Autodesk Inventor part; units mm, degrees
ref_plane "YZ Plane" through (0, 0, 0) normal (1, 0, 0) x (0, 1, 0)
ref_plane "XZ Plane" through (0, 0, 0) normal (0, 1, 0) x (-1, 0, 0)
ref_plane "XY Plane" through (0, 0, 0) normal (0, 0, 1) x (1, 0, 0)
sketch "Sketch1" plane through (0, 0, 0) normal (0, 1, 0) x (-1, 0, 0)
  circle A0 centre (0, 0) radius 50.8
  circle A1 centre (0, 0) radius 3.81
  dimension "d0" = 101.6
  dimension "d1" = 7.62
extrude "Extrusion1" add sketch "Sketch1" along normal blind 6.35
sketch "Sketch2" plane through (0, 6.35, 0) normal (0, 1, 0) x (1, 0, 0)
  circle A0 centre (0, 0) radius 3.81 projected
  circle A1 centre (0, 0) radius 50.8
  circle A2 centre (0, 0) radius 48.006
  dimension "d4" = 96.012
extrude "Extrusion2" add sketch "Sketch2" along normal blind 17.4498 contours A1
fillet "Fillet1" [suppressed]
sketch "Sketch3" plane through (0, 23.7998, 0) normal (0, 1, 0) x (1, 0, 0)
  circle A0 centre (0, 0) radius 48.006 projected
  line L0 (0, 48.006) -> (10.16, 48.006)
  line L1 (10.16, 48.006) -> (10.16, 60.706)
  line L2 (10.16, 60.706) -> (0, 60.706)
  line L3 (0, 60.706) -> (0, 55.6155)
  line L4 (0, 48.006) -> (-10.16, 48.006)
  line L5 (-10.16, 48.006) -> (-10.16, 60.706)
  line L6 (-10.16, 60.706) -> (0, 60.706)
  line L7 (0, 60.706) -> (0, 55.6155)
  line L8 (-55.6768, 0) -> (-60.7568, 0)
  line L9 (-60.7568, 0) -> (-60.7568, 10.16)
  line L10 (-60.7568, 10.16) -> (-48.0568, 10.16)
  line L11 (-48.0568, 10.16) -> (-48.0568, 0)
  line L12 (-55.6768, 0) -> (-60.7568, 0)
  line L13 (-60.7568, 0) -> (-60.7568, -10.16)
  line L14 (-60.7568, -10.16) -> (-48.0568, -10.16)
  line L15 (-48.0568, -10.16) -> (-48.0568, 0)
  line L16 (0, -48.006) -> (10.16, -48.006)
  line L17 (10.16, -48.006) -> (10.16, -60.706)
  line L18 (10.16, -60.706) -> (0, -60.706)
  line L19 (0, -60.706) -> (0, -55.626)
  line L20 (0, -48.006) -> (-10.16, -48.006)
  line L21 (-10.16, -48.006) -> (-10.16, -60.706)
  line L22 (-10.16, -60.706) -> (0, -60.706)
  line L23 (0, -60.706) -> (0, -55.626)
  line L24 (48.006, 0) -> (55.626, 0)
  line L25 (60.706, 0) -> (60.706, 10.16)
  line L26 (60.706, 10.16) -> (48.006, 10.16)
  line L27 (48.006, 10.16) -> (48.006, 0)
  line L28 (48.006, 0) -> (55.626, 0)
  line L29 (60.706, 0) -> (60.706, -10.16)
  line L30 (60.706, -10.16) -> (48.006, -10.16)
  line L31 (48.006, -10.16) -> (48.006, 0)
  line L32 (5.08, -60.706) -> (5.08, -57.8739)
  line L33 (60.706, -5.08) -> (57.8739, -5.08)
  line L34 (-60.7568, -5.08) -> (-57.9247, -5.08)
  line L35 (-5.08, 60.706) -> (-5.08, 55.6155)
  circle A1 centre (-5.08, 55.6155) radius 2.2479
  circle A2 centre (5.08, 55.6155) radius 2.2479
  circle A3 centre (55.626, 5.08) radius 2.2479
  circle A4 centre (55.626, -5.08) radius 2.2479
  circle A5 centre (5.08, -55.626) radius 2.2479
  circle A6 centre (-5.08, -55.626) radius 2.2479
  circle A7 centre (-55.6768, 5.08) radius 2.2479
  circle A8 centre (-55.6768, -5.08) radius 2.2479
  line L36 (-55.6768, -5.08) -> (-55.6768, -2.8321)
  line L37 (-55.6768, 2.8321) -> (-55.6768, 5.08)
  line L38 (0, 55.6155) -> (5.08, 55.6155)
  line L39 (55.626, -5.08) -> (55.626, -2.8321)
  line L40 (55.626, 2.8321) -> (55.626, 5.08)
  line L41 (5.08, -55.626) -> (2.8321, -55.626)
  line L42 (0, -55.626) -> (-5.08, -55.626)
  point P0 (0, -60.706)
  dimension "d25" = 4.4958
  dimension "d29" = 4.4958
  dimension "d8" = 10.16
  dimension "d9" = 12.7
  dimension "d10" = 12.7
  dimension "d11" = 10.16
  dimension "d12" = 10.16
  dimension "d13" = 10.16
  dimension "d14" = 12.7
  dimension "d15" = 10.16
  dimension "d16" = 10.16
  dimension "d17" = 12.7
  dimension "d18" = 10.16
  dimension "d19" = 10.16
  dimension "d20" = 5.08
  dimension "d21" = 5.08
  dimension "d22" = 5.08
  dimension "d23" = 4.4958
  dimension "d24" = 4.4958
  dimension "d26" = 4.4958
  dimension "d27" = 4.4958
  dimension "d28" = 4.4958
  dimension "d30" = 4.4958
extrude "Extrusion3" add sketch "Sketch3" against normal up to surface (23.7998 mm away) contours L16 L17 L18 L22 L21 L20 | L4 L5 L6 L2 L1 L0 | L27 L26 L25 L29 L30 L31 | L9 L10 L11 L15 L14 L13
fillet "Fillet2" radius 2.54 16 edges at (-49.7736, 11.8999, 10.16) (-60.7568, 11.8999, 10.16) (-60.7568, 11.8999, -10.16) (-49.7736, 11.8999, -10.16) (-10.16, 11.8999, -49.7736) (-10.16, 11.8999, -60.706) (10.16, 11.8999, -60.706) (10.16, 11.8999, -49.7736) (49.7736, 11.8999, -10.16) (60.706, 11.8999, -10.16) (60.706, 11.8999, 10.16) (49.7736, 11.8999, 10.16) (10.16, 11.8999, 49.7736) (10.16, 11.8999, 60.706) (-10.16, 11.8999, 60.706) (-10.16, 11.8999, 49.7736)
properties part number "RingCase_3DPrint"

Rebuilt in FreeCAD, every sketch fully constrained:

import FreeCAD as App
import Part
import Sketcher
from FreeCAD import Vector
Q = App.Units.Quantity


def edges_at(feature, points):
    """Names of the edges that pass closest to the given points."""
    edges = feature.Shape.Edges
    near = lambda p: min(range(len(edges)), key=lambda i: edges[i].distToShape(Part.Vertex(*p))[0])
    return sorted({f"Edge{near(p) + 1}" for p in points})


def add_polygon(sketch, points):
    """Adds a closed chain of lines whose ends are joined by coincident constraints."""
    first, n = sketch.GeometryCount, len(points)
    for a, b in zip(points, points[1:] + points[:1]):
        sketch.addGeometry(Part.LineSegment(App.Vector(*a, 0), App.Vector(*b, 0)), False)
    for i in range(n):
        sketch.addConstraint(Sketcher.Constraint("Coincident", first + i, 2, first + (i + 1) % n, 1))

doc = App.newDocument("Part")
body = doc.addObject("PartDesign::Body", "Body")

# Sketch on XZ plane
sketch1 = body.newObject("Sketcher::SketchObject", "Sketch")
sketch1.AttachmentSupport = (doc.getObject("XZ_Plane"), [""])
sketch1.MapMode = "FlatFace"
sketch1.addGeometry([
    Part.Circle(Vector(0, 0, 0), Vector(0, 0, 1), 50.8),
    Part.Circle(Vector(0, 0, 0), Vector(0, 0, 1), 3.81),
], False)
sketch1.addConstraint([
    Sketcher.Constraint("Coincident", 0, 3, -1, 1),
    Sketcher.Constraint("Coincident", 1, 3, -1, 1),
    Sketcher.Constraint("Diameter", 0, Q("4 in")),
    Sketcher.Constraint("Diameter", 1, Q("0.3 in")),
])
pad1 = body.newObject("PartDesign::Pad", "Pad")
pad1.Profile = sketch1
pad1.Length = Q("0.25 in")
pad1.Reversed = True

# Sketch on XZ plane
sketch2 = body.newObject("Sketcher::SketchObject", "Sketch001")
sketch2.AttachmentSupport = (doc.getObject("XZ_Plane"), [""])
sketch2.MapMode = "FlatFace"
sketch2.AttachmentOffset = App.Placement(Vector(0, 0, -0.25 * 25.4), App.Rotation())
sketch2.addGeometry([
    Part.Circle(Vector(0, 0, 0), Vector(0, 0, 1), 50.8),
    Part.Circle(Vector(0, 0, 0), Vector(0, 0, 1), 48.006),
], False)
sketch2.addConstraint([
    Sketcher.Constraint("Coincident", 0, 3, -1, 1),
    Sketcher.Constraint("Coincident", 1, 3, -1, 1),
    Sketcher.Constraint("Diameter", 1, Q("3.78 in")),
    Sketcher.Constraint("Diameter", 0, Q("4 in")),
])
pad2 = body.newObject("PartDesign::Pad", "Pad001")
pad2.Profile = sketch2
pad2.Length = Q("0.687 in")
pad2.Reversed = True

# Sketch on XZ plane
sketch3 = body.newObject("Sketcher::SketchObject", "Sketch002")
sketch3.AttachmentSupport = (doc.getObject("XZ_Plane"), [""])
sketch3.MapMode = "FlatFace"
sketch3.AttachmentOffset = App.Placement(Vector(0, 0, -0.937 * 25.4), App.Rotation())
add_polygon(sketch3, [(10.16, 48.006), (-10.16, 48.006), (-10.16, 60.706), (0, 60.706), (5.08, 60.706), (10.16, 60.706)])  # lines 0-5
sketch3.addGeometry(Part.Circle(Vector(-5.08, 55.626, 0), Vector(0, 0, 1), 2.2479), False)  # 6
sketch3.addGeometry(Part.Circle(Vector(5.08, 55.626, 0), Vector(0, 0, 1), 2.2479), False)  # 7
add_polygon(sketch3, [(-10.16, -48.006), (10.16, -48.006), (10.16, -60.706), (0, -60.706), (-5.08, -60.706), (-10.16, -60.706)])  # lines 8-13
sketch3.addGeometry(Part.Circle(Vector(-5.08, -55.6155, 0), Vector(0, 0, 1), 2.2479), False)  # 14
sketch3.addGeometry(Part.Circle(Vector(5.08, -55.6155, 0), Vector(0, 0, 1), 2.2479), False)  # 15
add_polygon(sketch3, [(48.006, -10.16), (48.006, 10.16), (60.706, 10.16), (60.706, 5.08), (60.706, -10.16)])  # lines 16-20
sketch3.addGeometry(Part.Circle(Vector(55.626, 5.08, 0), Vector(0, 0, 1), 2.2479), False)  # 21
sketch3.addGeometry(Part.Circle(Vector(55.626, -5.08, 0), Vector(0, 0, 1), 2.2479), False)  # 22
add_polygon(sketch3, [(-60.7568, -10.16), (-60.7568, 5.08), (-60.7568, 10.16), (-48.0568, 10.16), (-48.0568, -10.16)])  # lines 23-27
sketch3.addGeometry(Part.Circle(Vector(-55.6768, 5.08, 0), Vector(0, 0, 1), 2.2479), False)  # 28
sketch3.addGeometry(Part.Circle(Vector(-55.6768, -5.08, 0), Vector(0, 0, 1), 2.2479), False)  # 29
sketch3.addConstraint([
    Sketcher.Constraint("Horizontal", 0),
    Sketcher.Constraint("Vertical", 1),
    Sketcher.Constraint("Horizontal", 2),
    Sketcher.Constraint("Horizontal", 3),
    Sketcher.Constraint("Horizontal", 4),
    Sketcher.Constraint("Vertical", 5),
    Sketcher.Constraint("Horizontal", 8),
    Sketcher.Constraint("Vertical", 9),
    Sketcher.Constraint("Horizontal", 10),
    Sketcher.Constraint("Horizontal", 11),
    Sketcher.Constraint("Horizontal", 12),
    Sketcher.Constraint("Vertical", 13),
    Sketcher.Constraint("Vertical", 16),
    Sketcher.Constraint("Horizontal", 17),
    Sketcher.Constraint("Vertical", 18),
    Sketcher.Constraint("Vertical", 19),
    Sketcher.Constraint("Horizontal", 20),
    Sketcher.Constraint("Vertical", 23),
    Sketcher.Constraint("Vertical", 24),
    Sketcher.Constraint("Horizontal", 25),
    Sketcher.Constraint("Vertical", 26),
    Sketcher.Constraint("Horizontal", 27),
    Sketcher.Constraint("Equal", 6, 7),
    Sketcher.Constraint("Equal", 7, 14),
    Sketcher.Constraint("Equal", 14, 15),
    Sketcher.Constraint("Equal", 15, 21),
    Sketcher.Constraint("Equal", 21, 22),
    Sketcher.Constraint("Equal", 22, 28),
    Sketcher.Constraint("Equal", 28, 29),
    Sketcher.Constraint("Symmetric", 0, 2, 8, 2, -1, 1),
    Sketcher.Constraint("Symmetric", 2, 2, 10, 2, -1, 1),
    Sketcher.Constraint("Symmetric", 6, 3, 7, 3, -2),
    Sketcher.Constraint("Symmetric", 14, 3, 15, 3, -2),
    Sketcher.Constraint("Symmetric", 21, 3, 22, 3, -1),
    Sketcher.Constraint("Symmetric", 28, 3, 29, 3, -1),
    Sketcher.Constraint("PointOnObject", 2, 2, -2),
    Sketcher.Constraint("Horizontal", 21, 3, 28, 3),
    Sketcher.Constraint("Horizontal", 28, 3, 18, 2),
    Sketcher.Constraint("Horizontal", 18, 2, 23, 2),
    Sketcher.Constraint("Horizontal", 17, 2, 24, 2),
    Sketcher.Constraint("Horizontal", 20, 2, 26, 2),
    Sketcher.Constraint("Vertical", 6, 3, 14, 3),
    Sketcher.Constraint("Vertical", 15, 3, 3, 2),
    Sketcher.Constraint("Vertical", 5, 2, 8, 2),
    Sketcher.Constraint("Vertical", 14, 3, 11, 2),
    Sketcher.Constraint("Vertical", 1, 2, 12, 2),
    Sketcher.Constraint("Equal", 3, 4),
    Sketcher.Constraint("Equal", 20, 25),
    Sketcher.Constraint("Equal", 27, 1),
    Sketcher.Constraint("Equal", 8, 16),
    Sketcher.Constraint("Equal", 12, 18),
    Sketcher.Constraint("Diameter", 6, Q("0.177 in")),
    Sketcher.Constraint("DistanceX", 2, 1, 2, 2, Q("0.4 in")),
    Sketcher.Constraint("DistanceX", 17, 1, 17, 2, Q("0.5 in")),
    Sketcher.Constraint("DistanceY", -1, 1, 21, 3, Q("0.2 in")),
    Sketcher.Constraint("DistanceY", 6, 3, 1, 2, Q("0.2 in")),
    Sketcher.Constraint("DistanceX", 21, 3, 17, 2, Q("0.2 in")),
    Sketcher.Constraint("DistanceX", 23, 2, 28, 3, Q("0.2 in")),
    Sketcher.Constraint("DistanceY", -1, 1, 6, 3, Q("2.19 in")),
    Sketcher.Constraint("DistanceX", -1, 1, 21, 3, Q("2.19 in")),
    Sketcher.Constraint("DistanceX", 28, 3, -1, 1, Q("2.192 in")),
    Sketcher.Constraint("DistanceY", 14, 3, -1, 1, Q("55.6155 mm")),
])
pad3 = body.newObject("PartDesign::Pad", "Pad002")
pad3.Profile = sketch3
pad3.Length = Q("0.937 in")
doc.recompute()

fillet = body.newObject("PartDesign::Fillet", "Fillet")
fillet.Base = (pad3, edges_at(pad3, [
    (-49.774, 11.9, 10.16),
    (-60.757, 11.9, 10.16),
    (-60.757, 11.9, -10.16),
    (-49.774, 11.9, -10.16),
    (-10.16, 11.9, -49.774),
    (-10.16, 11.9, -60.706),
    (10.16, 11.9, -60.706),
    (10.16, 11.9, -49.774),
    (49.774, 11.9, -10.16),
    (60.706, 11.9, -10.16),
    (60.706, 11.9, 10.16),
    (49.774, 11.9, 10.16),
    (10.16, 11.9, 49.774),
    (10.16, 11.9, 60.706),
    (-10.16, 11.9, 60.706),
    (-10.16, 11.9, 49.774),
]))
fillet.Radius = Q("0.1 in")

doc.recompute()
